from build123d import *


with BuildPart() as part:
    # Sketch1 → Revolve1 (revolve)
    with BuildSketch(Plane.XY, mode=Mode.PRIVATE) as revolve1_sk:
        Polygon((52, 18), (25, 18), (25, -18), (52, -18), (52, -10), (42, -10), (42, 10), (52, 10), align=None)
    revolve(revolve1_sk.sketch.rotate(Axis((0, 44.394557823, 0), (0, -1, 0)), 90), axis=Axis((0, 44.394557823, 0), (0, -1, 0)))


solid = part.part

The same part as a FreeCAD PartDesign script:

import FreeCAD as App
import Part
import Sketcher
from FreeCAD import Vector
Q = App.Units.Quantity


def add_polygon(sketch, points):
    """Adds a closed chain of lines whose ends are joined by coincident constraints."""
    first, n = sketch.GeometryCount, len(points)
    for a, b in zip(points, points[1:] + points[:1]):
        sketch.addGeometry(Part.LineSegment(App.Vector(*a, 0), App.Vector(*b, 0)), False)
    for i in range(n):
        sketch.addConstraint(Sketcher.Constraint("Coincident", first + i, 2, first + (i + 1) % n, 1))

doc = App.newDocument("Part")
body = doc.addObject("PartDesign::Body", "Body")

sketch1 = body.newObject("Sketcher::SketchObject", "Sketch")
sketch1.AttachmentSupport = (doc.getObject("XY_Plane"), [""])
sketch1.MapMode = "FlatFace"
add_polygon(sketch1, [(52, 18), (25, 18), (25, -18), (52, -18), (52, -10), (42, -10), (42, 10), (52, 10)])
sketch1.addConstraint(Sketcher.Constraint("Horizontal", 0))
sketch1.addConstraint(Sketcher.Constraint("Vertical", 1))
sketch1.addConstraint(Sketcher.Constraint("Horizontal", 2))
sketch1.addConstraint(Sketcher.Constraint("Vertical", 3))
sketch1.addConstraint(Sketcher.Constraint("Horizontal", 4))
sketch1.addConstraint(Sketcher.Constraint("Vertical", 5))
sketch1.addConstraint(Sketcher.Constraint("Horizontal", 6))
sketch1.addConstraint(Sketcher.Constraint("Vertical", 7))
sketch1.addConstraint(Sketcher.Constraint("Symmetric", 3, 2, 6, 2, -1))
sketch1.addConstraint(Sketcher.Constraint("Equal", 3, 7))
sketch1.addConstraint(Sketcher.Constraint("DistanceX", 0, 2, 0, 1, Q("27 mm")))
sketch1.addConstraint(Sketcher.Constraint("DistanceX", 4, 2, 4, 1, Q("10 mm")))
sketch1.addConstraint(Sketcher.Constraint("DistanceY", 1, 2, 1, 1, Q("36 mm")))
sketch1.addConstraint(Sketcher.Constraint("DistanceY", 3, 1, 3, 2, Q("8 mm")))
sketch1.addConstraint(Sketcher.Constraint("DistanceX", -1, 1, 0, 2, Q("25 mm")))
revolution = body.newObject("PartDesign::Revolution", "Revolution")
revolution.Profile = sketch1
revolution.ReferenceAxis = (sketch1, ["V_Axis"])
revolution.Angle = 360

doc.recompute()
